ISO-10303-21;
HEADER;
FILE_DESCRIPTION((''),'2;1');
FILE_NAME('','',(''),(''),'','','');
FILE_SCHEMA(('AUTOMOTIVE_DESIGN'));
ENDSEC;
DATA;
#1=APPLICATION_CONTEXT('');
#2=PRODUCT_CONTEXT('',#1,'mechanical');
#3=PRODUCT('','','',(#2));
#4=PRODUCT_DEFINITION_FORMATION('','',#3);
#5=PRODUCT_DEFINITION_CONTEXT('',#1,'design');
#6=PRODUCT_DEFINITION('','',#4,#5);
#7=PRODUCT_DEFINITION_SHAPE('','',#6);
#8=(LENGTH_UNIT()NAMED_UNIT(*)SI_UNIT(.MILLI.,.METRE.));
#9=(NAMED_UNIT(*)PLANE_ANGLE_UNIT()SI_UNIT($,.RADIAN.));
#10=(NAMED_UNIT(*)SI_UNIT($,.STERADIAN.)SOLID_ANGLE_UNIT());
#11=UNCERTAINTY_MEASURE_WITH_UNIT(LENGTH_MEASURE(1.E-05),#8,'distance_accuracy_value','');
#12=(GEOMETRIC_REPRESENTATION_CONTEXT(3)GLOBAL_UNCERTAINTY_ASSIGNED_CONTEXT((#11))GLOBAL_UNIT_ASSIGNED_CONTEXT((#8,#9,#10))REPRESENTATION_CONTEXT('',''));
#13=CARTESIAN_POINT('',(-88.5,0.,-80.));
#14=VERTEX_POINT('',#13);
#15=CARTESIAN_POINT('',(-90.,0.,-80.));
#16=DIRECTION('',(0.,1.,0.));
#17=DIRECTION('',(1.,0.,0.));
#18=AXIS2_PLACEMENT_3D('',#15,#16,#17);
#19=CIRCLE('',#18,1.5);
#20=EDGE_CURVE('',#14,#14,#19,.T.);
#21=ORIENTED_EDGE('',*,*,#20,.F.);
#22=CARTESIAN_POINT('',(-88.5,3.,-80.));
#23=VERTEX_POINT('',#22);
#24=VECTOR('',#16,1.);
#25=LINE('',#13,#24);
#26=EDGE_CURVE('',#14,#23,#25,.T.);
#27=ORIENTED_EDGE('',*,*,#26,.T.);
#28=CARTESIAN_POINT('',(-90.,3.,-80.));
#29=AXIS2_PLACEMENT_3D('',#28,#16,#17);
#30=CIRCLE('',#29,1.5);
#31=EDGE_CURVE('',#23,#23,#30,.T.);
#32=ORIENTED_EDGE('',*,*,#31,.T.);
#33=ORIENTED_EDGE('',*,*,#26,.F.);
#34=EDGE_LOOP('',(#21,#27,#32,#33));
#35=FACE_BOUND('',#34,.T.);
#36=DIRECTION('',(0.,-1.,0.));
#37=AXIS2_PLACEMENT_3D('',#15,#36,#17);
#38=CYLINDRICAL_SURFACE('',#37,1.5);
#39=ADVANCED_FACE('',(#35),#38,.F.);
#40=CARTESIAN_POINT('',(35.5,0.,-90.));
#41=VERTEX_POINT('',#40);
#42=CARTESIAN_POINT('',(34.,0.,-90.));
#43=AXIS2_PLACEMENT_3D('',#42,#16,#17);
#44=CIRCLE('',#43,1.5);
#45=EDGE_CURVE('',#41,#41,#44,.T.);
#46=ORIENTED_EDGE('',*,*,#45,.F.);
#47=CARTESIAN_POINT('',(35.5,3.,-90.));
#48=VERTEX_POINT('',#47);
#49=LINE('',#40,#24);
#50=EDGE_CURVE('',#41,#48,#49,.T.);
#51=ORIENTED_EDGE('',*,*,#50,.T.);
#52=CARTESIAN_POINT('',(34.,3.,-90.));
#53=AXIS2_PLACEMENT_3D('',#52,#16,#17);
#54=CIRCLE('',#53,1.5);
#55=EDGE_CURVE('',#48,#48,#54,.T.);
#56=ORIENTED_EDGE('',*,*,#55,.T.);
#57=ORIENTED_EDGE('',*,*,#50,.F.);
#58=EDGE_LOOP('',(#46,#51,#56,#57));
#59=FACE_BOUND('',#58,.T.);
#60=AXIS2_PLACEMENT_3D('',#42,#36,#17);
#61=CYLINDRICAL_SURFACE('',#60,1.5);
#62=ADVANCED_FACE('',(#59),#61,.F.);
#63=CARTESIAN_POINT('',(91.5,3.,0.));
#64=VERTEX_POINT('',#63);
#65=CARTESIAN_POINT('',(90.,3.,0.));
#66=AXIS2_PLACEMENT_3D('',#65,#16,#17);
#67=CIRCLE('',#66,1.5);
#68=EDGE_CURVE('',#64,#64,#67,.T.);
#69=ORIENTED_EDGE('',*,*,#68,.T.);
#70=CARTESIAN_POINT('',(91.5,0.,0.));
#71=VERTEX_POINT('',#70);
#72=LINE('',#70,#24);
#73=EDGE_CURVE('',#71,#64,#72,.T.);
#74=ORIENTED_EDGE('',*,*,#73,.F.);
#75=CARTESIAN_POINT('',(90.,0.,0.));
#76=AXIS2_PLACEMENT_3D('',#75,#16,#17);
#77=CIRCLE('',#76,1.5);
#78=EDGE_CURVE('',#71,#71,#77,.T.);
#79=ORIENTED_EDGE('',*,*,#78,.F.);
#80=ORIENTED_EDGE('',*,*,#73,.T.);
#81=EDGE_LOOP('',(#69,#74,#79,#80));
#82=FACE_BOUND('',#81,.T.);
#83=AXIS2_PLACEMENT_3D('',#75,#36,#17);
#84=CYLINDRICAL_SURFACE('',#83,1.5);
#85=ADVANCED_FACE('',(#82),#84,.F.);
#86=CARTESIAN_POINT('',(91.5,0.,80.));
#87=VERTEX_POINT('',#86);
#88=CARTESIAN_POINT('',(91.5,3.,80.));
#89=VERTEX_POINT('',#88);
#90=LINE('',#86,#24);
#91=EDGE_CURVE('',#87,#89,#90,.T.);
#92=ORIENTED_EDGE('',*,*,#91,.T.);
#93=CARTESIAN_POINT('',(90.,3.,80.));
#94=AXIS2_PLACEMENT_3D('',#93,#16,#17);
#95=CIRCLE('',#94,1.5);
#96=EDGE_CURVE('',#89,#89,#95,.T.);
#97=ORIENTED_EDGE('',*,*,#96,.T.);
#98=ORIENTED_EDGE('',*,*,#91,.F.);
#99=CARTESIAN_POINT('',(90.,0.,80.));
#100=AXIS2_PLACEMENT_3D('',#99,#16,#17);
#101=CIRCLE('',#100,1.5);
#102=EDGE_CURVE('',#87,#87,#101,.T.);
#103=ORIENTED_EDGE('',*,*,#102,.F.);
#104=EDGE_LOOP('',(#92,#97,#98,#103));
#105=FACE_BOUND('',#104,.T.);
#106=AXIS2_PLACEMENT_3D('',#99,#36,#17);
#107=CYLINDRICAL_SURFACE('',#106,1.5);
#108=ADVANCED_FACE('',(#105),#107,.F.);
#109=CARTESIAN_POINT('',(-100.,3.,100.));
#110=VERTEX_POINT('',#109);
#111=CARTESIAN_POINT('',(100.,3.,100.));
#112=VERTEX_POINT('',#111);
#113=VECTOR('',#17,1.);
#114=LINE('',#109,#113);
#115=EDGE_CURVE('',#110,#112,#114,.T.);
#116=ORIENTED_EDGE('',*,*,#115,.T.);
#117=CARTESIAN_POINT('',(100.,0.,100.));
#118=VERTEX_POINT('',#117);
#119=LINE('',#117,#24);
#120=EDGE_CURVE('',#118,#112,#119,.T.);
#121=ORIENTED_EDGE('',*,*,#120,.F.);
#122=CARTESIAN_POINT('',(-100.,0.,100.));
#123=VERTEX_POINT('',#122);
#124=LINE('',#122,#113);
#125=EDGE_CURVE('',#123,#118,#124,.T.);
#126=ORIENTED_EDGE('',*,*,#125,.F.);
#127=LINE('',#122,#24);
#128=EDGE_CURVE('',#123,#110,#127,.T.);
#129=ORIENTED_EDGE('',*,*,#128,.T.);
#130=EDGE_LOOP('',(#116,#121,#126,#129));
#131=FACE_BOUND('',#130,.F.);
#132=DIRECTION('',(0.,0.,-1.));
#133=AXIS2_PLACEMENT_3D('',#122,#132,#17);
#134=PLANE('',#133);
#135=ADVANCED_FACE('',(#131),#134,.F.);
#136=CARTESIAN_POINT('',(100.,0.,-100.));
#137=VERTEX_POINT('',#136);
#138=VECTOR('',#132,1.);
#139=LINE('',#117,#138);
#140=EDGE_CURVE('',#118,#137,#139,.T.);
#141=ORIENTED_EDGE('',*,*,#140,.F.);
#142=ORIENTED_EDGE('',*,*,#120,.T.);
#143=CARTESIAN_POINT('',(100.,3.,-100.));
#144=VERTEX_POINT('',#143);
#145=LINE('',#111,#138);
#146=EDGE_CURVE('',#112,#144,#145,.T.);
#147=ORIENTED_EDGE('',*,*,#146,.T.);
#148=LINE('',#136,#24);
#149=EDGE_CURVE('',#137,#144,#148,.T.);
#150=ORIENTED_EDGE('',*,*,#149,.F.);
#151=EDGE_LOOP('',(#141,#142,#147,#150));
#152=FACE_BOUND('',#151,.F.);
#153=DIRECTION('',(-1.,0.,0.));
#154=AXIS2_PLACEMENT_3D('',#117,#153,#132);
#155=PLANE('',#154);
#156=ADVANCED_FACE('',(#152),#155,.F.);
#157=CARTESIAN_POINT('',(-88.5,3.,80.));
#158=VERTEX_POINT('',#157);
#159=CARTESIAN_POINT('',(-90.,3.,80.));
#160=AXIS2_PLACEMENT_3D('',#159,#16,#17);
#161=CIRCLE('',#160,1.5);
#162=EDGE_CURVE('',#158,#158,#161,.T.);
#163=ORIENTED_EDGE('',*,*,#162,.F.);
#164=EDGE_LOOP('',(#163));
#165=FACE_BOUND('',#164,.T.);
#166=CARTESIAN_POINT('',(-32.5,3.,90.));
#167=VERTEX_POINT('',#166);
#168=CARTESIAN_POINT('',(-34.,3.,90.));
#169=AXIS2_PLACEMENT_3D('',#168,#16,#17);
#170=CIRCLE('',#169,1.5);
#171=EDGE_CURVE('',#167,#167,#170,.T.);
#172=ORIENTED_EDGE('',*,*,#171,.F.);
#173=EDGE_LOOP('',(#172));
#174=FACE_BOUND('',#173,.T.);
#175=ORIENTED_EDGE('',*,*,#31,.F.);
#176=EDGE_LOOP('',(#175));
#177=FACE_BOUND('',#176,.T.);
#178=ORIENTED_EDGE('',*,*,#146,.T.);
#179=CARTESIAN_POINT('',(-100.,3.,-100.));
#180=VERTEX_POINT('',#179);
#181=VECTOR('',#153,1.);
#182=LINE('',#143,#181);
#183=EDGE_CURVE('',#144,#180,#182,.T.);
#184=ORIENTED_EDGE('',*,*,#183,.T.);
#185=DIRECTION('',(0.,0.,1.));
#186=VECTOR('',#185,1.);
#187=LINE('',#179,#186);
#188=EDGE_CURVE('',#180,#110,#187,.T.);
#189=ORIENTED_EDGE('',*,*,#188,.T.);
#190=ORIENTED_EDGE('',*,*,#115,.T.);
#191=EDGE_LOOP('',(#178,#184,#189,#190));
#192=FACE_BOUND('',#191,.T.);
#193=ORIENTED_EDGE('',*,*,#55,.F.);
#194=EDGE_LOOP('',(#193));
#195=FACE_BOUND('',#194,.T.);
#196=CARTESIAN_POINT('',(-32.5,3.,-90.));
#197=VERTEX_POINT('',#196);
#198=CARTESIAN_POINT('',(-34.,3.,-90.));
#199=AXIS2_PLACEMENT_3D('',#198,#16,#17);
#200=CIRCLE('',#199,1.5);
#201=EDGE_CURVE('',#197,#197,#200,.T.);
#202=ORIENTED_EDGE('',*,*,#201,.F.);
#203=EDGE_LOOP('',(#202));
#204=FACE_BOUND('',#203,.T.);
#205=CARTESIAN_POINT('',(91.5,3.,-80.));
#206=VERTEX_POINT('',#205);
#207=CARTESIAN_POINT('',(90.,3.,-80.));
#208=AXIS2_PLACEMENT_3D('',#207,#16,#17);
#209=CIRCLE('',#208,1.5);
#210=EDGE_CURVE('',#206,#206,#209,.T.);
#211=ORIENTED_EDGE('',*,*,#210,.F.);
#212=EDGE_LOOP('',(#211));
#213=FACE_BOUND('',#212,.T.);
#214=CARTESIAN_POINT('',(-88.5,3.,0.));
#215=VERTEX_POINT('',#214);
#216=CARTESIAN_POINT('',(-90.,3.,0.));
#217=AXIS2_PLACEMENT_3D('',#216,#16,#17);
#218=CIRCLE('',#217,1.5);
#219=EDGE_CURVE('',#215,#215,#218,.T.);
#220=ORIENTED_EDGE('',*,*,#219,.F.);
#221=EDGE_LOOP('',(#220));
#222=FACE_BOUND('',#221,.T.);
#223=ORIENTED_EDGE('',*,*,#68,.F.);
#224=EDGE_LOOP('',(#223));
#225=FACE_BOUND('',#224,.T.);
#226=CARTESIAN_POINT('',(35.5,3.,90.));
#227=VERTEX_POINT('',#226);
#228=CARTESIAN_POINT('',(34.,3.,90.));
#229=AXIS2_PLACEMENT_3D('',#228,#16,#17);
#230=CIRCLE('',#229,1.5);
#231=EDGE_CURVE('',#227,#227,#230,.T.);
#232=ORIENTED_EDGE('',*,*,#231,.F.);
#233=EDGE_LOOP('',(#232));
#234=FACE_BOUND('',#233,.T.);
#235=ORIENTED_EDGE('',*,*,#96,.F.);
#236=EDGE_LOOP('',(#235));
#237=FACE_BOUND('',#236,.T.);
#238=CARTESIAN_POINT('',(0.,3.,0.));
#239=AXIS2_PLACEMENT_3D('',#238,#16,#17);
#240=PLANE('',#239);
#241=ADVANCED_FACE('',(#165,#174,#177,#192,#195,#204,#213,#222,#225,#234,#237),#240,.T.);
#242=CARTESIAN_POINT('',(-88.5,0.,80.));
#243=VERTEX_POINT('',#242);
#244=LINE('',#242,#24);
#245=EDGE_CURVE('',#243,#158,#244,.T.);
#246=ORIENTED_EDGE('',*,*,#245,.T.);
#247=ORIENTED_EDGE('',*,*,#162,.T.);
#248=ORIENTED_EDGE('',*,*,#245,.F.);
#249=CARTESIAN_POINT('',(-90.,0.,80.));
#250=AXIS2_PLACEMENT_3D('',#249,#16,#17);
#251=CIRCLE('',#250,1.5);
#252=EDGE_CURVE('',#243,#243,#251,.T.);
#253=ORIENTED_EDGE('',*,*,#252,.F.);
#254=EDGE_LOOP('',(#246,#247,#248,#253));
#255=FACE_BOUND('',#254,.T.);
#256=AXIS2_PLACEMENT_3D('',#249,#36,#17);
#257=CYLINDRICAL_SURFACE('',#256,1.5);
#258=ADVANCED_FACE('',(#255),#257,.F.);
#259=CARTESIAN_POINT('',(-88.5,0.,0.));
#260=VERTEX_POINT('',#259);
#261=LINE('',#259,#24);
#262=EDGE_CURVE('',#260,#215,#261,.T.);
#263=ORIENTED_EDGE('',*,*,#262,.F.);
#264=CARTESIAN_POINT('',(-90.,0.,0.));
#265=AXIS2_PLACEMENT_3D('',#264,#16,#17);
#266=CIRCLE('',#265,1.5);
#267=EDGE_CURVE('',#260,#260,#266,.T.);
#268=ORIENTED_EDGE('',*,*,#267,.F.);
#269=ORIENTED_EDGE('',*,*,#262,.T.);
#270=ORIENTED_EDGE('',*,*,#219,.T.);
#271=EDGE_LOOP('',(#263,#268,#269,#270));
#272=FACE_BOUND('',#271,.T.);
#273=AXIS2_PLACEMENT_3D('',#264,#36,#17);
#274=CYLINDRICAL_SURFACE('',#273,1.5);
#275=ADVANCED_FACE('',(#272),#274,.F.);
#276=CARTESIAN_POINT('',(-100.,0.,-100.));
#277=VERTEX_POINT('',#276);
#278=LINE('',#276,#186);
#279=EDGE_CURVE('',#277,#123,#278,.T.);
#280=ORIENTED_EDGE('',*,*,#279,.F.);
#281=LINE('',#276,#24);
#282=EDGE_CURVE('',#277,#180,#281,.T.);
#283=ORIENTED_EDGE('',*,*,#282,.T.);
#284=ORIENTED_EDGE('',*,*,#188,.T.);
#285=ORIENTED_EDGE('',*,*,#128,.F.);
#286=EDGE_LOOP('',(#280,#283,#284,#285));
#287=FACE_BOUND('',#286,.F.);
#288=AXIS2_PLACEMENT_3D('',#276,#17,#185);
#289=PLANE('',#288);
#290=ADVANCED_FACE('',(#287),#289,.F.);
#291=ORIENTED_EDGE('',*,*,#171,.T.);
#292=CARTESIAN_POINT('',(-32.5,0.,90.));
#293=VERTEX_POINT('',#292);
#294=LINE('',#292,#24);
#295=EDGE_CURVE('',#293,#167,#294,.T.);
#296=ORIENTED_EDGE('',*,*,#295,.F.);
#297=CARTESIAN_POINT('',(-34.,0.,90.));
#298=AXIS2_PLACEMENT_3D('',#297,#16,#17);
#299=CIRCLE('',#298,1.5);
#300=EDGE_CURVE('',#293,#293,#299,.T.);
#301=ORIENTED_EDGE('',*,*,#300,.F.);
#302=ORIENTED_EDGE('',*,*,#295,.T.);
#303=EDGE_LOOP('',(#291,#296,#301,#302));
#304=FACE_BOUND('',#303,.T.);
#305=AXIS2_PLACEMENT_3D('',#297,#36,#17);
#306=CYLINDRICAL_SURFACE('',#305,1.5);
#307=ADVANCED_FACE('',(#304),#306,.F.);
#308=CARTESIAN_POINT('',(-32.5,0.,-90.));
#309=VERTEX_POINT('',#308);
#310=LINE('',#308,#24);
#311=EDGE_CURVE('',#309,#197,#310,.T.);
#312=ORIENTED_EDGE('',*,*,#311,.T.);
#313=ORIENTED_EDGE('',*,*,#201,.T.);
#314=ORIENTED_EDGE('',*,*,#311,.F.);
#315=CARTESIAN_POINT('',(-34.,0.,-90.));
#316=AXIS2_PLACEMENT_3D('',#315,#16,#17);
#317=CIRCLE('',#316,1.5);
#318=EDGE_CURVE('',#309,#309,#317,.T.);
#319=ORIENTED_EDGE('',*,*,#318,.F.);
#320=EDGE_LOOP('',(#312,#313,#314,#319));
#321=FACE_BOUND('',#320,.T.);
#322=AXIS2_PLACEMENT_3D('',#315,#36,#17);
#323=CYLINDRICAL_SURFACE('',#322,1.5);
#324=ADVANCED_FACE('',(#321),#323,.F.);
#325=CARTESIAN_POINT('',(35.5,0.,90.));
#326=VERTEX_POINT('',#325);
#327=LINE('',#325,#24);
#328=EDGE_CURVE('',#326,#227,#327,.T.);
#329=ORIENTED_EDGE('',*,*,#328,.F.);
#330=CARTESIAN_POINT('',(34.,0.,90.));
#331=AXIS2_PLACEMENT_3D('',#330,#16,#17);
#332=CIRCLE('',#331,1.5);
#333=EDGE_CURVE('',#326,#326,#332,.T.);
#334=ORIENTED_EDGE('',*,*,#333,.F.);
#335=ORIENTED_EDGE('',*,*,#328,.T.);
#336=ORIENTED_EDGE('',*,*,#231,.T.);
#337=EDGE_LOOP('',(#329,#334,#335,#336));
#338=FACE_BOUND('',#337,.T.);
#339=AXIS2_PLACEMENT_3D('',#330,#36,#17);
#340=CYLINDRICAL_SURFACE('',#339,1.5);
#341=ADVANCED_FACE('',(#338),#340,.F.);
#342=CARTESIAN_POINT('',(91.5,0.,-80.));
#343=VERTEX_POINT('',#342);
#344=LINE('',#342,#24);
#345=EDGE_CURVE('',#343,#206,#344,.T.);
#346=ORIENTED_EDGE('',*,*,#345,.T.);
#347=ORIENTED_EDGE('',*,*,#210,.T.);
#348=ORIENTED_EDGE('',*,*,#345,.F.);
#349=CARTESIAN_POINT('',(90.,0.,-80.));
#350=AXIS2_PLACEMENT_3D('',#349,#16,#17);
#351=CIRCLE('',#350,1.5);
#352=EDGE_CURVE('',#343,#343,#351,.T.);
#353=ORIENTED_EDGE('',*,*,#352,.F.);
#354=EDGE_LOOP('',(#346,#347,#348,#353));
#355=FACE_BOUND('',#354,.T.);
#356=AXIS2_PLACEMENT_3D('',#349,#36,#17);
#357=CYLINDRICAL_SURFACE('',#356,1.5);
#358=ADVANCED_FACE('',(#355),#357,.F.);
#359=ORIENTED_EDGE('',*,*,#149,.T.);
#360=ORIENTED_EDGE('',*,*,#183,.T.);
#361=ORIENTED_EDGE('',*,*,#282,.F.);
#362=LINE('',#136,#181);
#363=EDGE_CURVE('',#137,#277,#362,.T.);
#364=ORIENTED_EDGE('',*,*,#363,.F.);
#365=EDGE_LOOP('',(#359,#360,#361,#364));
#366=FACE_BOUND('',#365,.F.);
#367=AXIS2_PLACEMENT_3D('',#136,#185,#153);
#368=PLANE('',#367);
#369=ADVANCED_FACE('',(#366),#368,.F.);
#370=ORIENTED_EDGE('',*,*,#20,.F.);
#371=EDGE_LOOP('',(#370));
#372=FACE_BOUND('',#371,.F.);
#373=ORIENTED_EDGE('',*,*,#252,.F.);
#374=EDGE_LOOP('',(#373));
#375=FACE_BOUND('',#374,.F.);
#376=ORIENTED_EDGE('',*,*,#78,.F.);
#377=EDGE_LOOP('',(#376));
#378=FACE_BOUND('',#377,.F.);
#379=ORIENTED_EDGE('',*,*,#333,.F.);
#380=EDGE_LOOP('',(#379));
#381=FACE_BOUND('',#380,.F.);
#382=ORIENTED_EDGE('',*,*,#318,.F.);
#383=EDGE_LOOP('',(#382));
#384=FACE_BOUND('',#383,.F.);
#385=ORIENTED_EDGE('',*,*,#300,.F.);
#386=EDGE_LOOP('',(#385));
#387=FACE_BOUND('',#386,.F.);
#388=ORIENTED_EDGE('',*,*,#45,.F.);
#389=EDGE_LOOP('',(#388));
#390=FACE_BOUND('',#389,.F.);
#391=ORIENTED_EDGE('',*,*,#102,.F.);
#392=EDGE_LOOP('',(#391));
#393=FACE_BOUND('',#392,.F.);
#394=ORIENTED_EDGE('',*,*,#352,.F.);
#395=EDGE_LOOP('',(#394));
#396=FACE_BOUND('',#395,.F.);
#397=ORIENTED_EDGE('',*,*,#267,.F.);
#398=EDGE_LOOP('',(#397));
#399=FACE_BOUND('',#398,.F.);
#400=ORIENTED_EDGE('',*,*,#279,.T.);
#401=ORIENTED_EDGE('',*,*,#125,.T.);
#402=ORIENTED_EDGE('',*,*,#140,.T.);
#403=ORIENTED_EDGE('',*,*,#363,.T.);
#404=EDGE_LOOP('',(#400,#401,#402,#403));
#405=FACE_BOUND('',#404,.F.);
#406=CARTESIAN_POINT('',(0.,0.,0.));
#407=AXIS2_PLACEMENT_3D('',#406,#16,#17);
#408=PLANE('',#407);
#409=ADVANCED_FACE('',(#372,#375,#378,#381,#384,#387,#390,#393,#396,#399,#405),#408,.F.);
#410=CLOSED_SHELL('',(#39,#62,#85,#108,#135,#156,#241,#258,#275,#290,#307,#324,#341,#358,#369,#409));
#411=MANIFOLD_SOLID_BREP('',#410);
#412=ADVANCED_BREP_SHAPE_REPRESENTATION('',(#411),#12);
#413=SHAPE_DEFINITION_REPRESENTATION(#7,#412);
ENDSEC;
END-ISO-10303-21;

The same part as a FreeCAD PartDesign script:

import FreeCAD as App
import Part
import Sketcher


def add_polygon(sketch, points):
    """Adds a closed chain of lines whose ends are joined by coincident constraints."""
    first, n = sketch.GeometryCount, len(points)
    for a, b in zip(points, points[1:] + points[:1]):
        sketch.addGeometry(Part.LineSegment(App.Vector(*a, 0), App.Vector(*b, 0)), False)
    for i in range(n):
        sketch.addConstraint(Sketcher.Constraint("Coincident", first + i, 2, first + (i + 1) % n, 1))

doc = App.newDocument("Part")
body = doc.addObject("PartDesign::Body", "Body")

# Sketch on XZ plane
sketch1 = doc.addObject("Sketcher::SketchObject", "Sketch")
body.addObject(sketch1)
sketch1.AttachmentSupport = (doc.XZ_Plane, [""])
sketch1.MapMode = "FlatFace"
add_polygon(sketch1, [(100, 100), (100, -100), (-100, -100), (-100, 100)])  # lines 0-3
sketch1.addGeometry(Part.Circle(App.Vector(-90, 80, 0), App.Vector(0, 0, 1), 1.5), False)  # 4
sketch1.addGeometry(Part.Circle(App.Vector(-34, 90, 0), App.Vector(0, 0, 1), 1.5), False)  # 5
sketch1.addGeometry(Part.Circle(App.Vector(34, 90, 0), App.Vector(0, 0, 1), 1.5), False)  # 6
sketch1.addGeometry(Part.Circle(App.Vector(90, 80, 0), App.Vector(0, 0, 1), 1.5), False)  # 7
sketch1.addGeometry(Part.Circle(App.Vector(-90, 0, 0), App.Vector(0, 0, 1), 1.5), False)  # 8
sketch1.addGeometry(Part.Circle(App.Vector(-90, -80, 0), App.Vector(0, 0, 1), 1.5), False)  # 9
sketch1.addGeometry(Part.Circle(App.Vector(-34, -90, 0), App.Vector(0, 0, 1), 1.5), False)  # 10
sketch1.addGeometry(Part.Circle(App.Vector(90, 0, 0), App.Vector(0, 0, 1), 1.5), False)  # 11
sketch1.addGeometry(Part.Circle(App.Vector(34, -90, 0), App.Vector(0, 0, 1), 1.5), False)  # 12
sketch1.addGeometry(Part.Circle(App.Vector(90, -80, 0), App.Vector(0, 0, 1), 1.5), False)  # 13
sketch1.addConstraint(Sketcher.Constraint("Vertical", 0))
sketch1.addConstraint(Sketcher.Constraint("Horizontal", 1))
sketch1.addConstraint(Sketcher.Constraint("Vertical", 2))
sketch1.addConstraint(Sketcher.Constraint("Horizontal", 3))
sketch1.addConstraint(Sketcher.Constraint("Equal", 4, 5))
sketch1.addConstraint(Sketcher.Constraint("Equal", 5, 6))
sketch1.addConstraint(Sketcher.Constraint("Equal", 6, 7))
sketch1.addConstraint(Sketcher.Constraint("Equal", 7, 8))
sketch1.addConstraint(Sketcher.Constraint("Equal", 8, 9))
sketch1.addConstraint(Sketcher.Constraint("Equal", 9, 10))
sketch1.addConstraint(Sketcher.Constraint("Equal", 10, 11))
sketch1.addConstraint(Sketcher.Constraint("Equal", 11, 12))
sketch1.addConstraint(Sketcher.Constraint("Equal", 12, 13))
sketch1.addConstraint(Sketcher.Constraint("Symmetric", 7, 3, 9, 3, -1, 1))
sketch1.addConstraint(Sketcher.Constraint("Symmetric", 6, 3, 10, 3, -1, 1))
sketch1.addConstraint(Sketcher.Constraint("Symmetric", 8, 3, 11, 3, -1, 1))
sketch1.addConstraint(Sketcher.Constraint("Symmetric", 5, 3, 12, 3, -1, 1))
sketch1.addConstraint(Sketcher.Constraint("Symmetric", 4, 3, 13, 3, -1, 1))
sketch1.addConstraint(Sketcher.Constraint("Symmetric", 0, 2, 2, 2, -1, 1))
sketch1.addConstraint(Sketcher.Constraint("Symmetric", 5, 3, 6, 3, -2))
sketch1.addConstraint(Sketcher.Constraint("Symmetric", 4, 3, 7, 3, -2))
sketch1.addConstraint(Sketcher.Constraint("PointOnObject", 8, 3, -1))
sketch1.addConstraint(Sketcher.Constraint("Vertical", 4, 3, 8, 3))
sketch1.addConstraint(Sketcher.Constraint("Equal", 3, 0))
sketch1.addConstraint(Sketcher.Constraint("Diameter", 4, 3.0))
sketch1.addConstraint(Sketcher.Constraint("DistanceX", 1, 2, 1, 1, 200.0))
sketch1.addConstraint(Sketcher.Constraint("DistanceY", 4, 3, 5, 3, 10.0))
sketch1.addConstraint(Sketcher.Constraint("DistanceX", 13, 3, 0, 2, 10.0))
sketch1.addConstraint(Sketcher.Constraint("DistanceY", 0, 2, 13, 3, 20.0))
sketch1.addConstraint(Sketcher.Constraint("DistanceX", 12, 3, 0, 2, 66.0))
pad1 = doc.addObject("PartDesign::Pad", "Pad")
body.addObject(pad1)
pad1.Profile = sketch1
pad1.Length = 3
pad1.Reversed = True

doc.recompute()
